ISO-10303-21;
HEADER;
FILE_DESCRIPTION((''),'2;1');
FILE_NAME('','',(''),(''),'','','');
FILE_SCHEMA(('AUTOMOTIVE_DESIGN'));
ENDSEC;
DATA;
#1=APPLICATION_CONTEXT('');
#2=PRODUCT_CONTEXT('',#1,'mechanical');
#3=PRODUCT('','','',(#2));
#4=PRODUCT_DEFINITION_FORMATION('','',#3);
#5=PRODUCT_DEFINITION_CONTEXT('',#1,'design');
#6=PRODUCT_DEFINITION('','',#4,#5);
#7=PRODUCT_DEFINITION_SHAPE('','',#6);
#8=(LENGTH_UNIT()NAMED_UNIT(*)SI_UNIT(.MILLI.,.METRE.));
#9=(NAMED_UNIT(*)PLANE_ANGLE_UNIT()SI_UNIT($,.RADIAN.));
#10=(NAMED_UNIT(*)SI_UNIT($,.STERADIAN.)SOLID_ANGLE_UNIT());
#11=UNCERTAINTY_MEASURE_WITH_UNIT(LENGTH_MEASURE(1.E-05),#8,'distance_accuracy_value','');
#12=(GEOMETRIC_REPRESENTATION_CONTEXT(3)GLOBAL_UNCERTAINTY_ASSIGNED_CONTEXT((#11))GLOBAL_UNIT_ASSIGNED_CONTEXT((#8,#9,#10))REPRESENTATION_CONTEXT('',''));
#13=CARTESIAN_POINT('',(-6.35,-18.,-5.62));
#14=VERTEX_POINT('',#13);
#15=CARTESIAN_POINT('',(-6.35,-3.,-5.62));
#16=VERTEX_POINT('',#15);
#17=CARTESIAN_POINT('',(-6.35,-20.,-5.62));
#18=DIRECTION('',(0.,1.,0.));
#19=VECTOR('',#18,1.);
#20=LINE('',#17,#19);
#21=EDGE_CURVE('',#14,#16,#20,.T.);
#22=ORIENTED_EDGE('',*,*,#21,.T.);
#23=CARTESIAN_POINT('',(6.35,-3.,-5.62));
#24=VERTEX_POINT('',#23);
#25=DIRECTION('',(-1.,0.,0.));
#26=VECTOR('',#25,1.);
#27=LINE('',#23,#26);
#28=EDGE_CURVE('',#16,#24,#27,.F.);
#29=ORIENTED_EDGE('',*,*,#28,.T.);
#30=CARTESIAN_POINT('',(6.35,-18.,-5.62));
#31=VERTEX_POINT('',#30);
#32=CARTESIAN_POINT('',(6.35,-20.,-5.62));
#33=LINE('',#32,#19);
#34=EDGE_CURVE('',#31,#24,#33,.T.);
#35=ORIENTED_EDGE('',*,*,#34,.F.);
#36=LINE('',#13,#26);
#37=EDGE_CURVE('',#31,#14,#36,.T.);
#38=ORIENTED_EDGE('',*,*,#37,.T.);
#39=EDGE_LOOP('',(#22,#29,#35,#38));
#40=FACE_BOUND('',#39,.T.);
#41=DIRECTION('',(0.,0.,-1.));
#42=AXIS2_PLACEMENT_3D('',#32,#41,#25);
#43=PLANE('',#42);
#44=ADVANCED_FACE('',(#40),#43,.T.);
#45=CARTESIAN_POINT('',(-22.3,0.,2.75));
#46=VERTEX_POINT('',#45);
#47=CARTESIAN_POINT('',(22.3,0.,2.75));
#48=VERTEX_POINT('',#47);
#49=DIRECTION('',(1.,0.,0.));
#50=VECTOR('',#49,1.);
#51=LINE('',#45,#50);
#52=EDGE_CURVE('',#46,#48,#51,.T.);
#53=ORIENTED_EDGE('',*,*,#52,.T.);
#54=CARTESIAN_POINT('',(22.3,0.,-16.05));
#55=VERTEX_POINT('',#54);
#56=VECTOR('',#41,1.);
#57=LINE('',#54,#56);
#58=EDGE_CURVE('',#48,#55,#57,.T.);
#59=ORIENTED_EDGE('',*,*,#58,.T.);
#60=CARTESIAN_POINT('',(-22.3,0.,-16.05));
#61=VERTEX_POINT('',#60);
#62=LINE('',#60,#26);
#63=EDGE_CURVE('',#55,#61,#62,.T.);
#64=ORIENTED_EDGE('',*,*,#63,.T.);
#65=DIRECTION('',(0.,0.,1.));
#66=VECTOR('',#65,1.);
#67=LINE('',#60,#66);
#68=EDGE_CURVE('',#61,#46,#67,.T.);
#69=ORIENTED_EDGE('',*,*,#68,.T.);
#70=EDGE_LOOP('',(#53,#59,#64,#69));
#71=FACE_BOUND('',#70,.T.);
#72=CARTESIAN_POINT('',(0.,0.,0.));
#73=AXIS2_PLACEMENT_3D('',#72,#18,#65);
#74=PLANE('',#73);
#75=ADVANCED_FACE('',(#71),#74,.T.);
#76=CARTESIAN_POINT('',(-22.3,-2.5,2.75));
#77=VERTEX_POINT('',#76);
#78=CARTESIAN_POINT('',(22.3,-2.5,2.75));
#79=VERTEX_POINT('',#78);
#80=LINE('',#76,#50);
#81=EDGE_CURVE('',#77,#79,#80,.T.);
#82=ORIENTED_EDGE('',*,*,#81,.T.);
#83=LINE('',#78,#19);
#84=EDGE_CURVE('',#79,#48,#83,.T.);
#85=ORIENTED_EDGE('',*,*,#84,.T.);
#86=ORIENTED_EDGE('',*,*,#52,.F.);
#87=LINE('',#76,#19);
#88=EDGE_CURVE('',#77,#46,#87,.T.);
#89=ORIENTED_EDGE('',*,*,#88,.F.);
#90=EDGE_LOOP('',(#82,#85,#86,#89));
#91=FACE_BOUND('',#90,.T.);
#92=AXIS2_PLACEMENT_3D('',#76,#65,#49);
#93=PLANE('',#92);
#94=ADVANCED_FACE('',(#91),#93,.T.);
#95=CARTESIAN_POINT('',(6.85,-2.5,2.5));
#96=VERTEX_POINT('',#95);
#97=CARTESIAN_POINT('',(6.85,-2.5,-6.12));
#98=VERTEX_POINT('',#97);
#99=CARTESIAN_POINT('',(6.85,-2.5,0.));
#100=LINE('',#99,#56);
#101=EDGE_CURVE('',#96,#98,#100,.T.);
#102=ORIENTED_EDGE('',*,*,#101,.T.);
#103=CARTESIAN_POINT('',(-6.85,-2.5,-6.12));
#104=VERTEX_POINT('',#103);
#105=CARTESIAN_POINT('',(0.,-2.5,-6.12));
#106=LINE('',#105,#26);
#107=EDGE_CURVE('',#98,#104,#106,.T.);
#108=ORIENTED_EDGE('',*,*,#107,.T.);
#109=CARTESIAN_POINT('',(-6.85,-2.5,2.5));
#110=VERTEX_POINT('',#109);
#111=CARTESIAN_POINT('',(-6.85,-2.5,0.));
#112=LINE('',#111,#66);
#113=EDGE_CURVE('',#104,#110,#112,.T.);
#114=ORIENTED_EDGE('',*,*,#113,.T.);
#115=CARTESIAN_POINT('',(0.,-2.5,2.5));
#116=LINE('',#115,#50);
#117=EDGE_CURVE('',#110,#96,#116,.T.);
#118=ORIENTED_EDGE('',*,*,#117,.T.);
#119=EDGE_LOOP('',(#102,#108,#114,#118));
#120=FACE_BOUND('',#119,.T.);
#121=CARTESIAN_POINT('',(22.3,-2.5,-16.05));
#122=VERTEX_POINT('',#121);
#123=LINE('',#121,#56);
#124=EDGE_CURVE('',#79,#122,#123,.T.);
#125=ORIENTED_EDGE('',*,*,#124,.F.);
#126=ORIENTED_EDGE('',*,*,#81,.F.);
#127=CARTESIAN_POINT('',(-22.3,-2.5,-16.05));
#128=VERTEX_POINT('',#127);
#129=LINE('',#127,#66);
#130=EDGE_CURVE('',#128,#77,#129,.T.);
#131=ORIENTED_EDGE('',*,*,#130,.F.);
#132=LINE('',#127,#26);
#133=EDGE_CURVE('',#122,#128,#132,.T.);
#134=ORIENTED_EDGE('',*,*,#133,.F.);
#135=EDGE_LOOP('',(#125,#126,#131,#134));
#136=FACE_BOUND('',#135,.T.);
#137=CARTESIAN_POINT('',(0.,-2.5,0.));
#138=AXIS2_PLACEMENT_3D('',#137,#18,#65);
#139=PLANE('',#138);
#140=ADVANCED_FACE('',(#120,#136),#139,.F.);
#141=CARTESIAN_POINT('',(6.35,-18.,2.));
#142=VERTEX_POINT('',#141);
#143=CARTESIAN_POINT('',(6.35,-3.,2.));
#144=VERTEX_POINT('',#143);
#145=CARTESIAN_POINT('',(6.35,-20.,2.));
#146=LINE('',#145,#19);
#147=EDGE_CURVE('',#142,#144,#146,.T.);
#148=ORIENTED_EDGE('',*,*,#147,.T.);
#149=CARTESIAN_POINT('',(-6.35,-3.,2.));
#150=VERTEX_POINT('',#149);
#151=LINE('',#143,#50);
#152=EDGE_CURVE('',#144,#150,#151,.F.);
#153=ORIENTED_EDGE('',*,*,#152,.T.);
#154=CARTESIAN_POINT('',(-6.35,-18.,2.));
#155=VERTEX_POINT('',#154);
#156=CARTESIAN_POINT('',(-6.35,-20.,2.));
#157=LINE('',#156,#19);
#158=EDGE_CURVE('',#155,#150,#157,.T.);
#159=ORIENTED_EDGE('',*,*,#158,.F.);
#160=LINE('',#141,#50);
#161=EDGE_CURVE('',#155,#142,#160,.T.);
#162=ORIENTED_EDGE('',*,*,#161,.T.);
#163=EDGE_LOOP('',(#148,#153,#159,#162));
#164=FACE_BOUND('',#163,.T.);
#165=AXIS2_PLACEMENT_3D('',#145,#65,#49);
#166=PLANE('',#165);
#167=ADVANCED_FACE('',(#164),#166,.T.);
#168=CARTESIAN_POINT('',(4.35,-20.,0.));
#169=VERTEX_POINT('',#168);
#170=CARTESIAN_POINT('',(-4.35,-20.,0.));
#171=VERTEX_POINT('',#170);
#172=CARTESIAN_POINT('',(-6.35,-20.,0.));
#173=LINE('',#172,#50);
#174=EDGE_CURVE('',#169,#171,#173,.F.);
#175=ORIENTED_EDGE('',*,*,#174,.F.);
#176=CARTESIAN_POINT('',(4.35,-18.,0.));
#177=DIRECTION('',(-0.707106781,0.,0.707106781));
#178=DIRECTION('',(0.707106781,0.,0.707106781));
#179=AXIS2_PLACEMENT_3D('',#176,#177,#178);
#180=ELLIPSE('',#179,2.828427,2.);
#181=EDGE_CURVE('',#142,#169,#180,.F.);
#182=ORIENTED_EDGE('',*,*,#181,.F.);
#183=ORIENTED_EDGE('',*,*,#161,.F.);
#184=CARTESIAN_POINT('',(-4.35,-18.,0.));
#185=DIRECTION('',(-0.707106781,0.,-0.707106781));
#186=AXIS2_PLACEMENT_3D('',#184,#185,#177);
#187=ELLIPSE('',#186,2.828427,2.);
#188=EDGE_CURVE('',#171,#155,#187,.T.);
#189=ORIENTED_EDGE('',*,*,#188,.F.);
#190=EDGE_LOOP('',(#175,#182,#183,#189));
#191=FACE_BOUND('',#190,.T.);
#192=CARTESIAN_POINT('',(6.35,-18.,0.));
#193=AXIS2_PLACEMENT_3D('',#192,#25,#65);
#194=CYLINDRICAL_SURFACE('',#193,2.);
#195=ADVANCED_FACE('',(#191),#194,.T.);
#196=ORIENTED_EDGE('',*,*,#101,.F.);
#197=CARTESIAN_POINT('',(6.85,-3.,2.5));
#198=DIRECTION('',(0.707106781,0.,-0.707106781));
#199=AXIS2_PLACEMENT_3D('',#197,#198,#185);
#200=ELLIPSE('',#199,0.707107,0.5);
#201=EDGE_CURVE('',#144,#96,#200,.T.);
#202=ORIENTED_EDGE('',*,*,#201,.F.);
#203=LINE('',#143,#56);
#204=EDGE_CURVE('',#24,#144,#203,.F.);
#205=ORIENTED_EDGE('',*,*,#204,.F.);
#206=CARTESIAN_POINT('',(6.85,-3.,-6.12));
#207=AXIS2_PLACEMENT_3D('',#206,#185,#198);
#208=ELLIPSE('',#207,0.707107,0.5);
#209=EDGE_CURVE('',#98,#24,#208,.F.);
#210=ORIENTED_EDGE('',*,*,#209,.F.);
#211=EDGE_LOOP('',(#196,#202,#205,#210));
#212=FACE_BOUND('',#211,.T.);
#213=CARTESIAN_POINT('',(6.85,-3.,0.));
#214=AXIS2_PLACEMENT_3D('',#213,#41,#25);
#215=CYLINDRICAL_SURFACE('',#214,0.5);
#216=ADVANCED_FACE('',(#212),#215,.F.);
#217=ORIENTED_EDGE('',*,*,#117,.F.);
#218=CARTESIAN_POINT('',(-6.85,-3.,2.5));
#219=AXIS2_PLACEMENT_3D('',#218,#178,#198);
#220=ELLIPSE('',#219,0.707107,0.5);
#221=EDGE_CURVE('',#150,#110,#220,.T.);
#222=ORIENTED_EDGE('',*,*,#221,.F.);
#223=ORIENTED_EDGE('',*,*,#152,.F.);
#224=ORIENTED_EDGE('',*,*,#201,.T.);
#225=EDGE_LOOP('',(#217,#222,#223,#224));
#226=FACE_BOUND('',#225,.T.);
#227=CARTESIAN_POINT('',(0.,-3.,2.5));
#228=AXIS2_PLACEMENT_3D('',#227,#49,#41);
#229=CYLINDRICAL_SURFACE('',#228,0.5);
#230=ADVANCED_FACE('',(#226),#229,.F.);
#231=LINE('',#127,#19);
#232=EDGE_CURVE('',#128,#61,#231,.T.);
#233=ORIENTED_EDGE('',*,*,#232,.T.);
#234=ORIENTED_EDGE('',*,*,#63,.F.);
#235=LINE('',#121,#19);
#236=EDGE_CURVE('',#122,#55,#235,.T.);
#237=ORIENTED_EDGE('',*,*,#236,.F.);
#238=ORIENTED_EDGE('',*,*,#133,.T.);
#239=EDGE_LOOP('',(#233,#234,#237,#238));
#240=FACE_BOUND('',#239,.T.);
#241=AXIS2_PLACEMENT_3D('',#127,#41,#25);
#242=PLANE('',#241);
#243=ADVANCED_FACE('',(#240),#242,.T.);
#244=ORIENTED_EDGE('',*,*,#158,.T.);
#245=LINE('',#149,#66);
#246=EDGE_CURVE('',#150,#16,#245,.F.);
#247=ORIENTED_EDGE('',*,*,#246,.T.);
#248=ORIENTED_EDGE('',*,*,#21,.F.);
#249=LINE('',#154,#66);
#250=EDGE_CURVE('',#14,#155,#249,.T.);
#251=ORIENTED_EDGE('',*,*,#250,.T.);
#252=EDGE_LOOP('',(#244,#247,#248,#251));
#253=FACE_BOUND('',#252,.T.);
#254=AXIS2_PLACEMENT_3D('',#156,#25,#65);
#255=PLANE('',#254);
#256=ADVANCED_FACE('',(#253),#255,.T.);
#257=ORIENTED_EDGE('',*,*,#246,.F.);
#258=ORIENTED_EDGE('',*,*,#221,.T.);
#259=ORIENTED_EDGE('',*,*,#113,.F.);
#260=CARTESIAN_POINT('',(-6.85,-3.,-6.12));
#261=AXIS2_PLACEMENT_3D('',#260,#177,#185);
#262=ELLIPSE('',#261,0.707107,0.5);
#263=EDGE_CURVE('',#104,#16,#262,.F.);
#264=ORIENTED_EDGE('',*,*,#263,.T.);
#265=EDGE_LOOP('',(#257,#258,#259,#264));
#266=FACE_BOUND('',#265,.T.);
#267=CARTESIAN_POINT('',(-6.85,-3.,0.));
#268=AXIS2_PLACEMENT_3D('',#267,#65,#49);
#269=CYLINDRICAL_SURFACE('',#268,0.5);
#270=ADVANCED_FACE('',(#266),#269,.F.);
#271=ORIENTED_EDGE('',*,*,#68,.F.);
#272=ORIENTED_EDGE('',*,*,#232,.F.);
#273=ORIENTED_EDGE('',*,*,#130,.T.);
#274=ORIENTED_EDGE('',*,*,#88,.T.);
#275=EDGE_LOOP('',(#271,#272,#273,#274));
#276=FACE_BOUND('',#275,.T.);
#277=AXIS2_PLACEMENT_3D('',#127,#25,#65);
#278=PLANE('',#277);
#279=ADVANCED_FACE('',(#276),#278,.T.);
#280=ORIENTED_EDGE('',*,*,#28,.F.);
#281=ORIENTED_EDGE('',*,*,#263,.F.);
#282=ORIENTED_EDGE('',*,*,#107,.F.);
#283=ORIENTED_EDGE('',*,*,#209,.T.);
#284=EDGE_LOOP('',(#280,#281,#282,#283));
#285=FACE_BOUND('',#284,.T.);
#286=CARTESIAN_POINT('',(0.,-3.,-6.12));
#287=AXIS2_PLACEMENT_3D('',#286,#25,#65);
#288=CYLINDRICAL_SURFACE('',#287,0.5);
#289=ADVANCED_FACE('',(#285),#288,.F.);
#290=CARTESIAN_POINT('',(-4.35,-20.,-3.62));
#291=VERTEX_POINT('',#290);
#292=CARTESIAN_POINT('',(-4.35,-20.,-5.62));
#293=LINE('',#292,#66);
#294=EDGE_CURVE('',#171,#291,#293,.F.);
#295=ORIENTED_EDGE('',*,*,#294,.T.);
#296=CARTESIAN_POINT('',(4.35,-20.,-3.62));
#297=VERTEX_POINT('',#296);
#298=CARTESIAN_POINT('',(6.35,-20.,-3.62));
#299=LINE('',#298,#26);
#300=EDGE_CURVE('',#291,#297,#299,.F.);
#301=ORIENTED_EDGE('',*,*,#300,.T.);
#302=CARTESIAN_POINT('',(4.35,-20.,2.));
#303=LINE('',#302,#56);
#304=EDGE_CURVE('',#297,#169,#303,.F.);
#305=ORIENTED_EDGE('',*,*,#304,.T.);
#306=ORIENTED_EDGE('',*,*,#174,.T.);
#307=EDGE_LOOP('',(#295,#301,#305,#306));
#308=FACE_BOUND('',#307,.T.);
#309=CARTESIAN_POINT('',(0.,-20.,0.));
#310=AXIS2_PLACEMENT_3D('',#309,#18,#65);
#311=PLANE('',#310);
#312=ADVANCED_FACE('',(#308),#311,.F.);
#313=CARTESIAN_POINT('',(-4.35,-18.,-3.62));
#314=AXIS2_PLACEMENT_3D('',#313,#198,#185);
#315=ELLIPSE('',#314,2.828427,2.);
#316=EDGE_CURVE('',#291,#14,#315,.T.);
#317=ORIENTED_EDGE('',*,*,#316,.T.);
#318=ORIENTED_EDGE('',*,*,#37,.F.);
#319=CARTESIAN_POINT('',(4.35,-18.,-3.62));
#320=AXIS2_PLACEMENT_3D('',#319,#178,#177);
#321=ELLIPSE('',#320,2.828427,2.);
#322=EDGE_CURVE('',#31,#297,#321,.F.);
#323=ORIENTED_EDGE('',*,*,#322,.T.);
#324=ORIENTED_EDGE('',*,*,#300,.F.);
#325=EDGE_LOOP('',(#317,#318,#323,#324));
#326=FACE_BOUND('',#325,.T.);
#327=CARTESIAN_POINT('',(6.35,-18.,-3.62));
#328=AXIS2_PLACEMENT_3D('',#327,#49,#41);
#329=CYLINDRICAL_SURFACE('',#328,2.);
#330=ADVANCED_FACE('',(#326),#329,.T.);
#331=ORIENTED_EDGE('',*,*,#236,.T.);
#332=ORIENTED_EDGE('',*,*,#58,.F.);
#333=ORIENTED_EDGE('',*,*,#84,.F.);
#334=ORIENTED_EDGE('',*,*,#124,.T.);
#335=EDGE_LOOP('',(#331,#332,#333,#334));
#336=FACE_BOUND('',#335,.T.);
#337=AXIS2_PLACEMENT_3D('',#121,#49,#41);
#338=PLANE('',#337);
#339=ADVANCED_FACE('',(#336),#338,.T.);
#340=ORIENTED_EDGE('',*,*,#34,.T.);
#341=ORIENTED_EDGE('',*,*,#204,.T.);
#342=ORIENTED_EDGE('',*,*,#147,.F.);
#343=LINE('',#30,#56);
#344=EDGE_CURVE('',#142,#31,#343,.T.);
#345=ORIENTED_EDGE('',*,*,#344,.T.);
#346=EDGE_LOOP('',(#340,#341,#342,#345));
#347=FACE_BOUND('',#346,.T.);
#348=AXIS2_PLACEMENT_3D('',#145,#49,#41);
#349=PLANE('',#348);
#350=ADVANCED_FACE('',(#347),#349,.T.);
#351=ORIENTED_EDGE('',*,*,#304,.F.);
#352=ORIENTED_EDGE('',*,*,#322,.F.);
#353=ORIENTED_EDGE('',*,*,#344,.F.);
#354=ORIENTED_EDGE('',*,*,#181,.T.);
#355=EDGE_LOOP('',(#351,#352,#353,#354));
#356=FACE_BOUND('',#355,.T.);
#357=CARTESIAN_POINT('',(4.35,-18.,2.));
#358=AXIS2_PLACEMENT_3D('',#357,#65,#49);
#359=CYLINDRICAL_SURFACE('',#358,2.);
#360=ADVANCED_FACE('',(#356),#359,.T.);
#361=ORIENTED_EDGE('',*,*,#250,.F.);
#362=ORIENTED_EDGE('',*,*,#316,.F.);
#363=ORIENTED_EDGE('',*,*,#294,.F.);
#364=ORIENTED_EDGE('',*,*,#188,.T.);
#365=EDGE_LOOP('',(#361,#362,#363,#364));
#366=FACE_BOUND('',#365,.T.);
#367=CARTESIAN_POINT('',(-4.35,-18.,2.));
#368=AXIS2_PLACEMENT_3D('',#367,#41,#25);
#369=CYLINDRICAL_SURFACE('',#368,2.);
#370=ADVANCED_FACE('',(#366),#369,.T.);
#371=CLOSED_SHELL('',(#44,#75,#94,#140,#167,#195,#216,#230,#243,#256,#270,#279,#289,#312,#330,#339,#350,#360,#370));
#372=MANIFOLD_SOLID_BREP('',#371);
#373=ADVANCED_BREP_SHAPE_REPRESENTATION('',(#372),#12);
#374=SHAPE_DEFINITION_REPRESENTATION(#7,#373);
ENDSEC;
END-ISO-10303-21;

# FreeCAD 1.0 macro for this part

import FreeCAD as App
import Part
import Sketcher


def edges_at(feature, points):
    """Names of the edges that pass closest to the given points."""
    edges = feature.Shape.Edges
    near = lambda p: min(range(len(edges)), key=lambda i: edges[i].distToShape(Part.Vertex(*p))[0])
    return sorted({f"Edge{near(p) + 1}" for p in points})


def add_polygon(sketch, points):
    """Adds a closed chain of lines whose ends are joined by coincident constraints."""
    first, n = sketch.GeometryCount, len(points)
    for a, b in zip(points, points[1:] + points[:1]):
        sketch.addGeometry(Part.LineSegment(App.Vector(*a, 0), App.Vector(*b, 0)), False)
    for i in range(n):
        sketch.addConstraint(Sketcher.Constraint("Coincident", first + i, 2, first + (i + 1) % n, 1))

doc = App.newDocument("Part")
body = doc.addObject("PartDesign::Body", "Body")

# Sketch on XZ plane
sketch1 = body.newObject("Sketcher::SketchObject", "Sketch")
sketch1.AttachmentSupport = (doc.getObject("XZ_Plane"), [""])
sketch1.MapMode = "FlatFace"
add_polygon(sketch1, [(-22, -16), (-22, 3), (22, 3), (22, -16)])  # lines 0-3
sketch1.addConstraint([
    Sketcher.Constraint("Vertical", 0),
    Sketcher.Constraint("Horizontal", 1),
    Sketcher.Constraint("Vertical", 2),
    Sketcher.Constraint("Horizontal", 3),
    Sketcher.Constraint("DistanceX", 1, 1, 1, 2, 44.6),
    Sketcher.Constraint("DistanceY", 0, 1, 0, 2, 18.8),
    Sketcher.Constraint("DistanceX", 0, 2, -1, 1, 22.3),
    Sketcher.Constraint("DistanceY", -1, 1, 0, 2, 2.75),
])
pad1 = body.newObject("PartDesign::Pad", "Pad")
pad1.Profile = sketch1
pad1.Length = 2.5

# Sketch on XZ plane
sketch2 = body.newObject("Sketcher::SketchObject", "Sketch001")
sketch2.AttachmentSupport = (doc.getObject("XZ_Plane"), [""])
sketch2.MapMode = "FlatFace"
add_polygon(sketch2, [(-6, -6), (-6, 2), (6, 2), (6, -6)])  # lines 0-3
sketch2.addConstraint([
    Sketcher.Constraint("Vertical", 0),
    Sketcher.Constraint("Horizontal", 1),
    Sketcher.Constraint("Vertical", 2),
    Sketcher.Constraint("Horizontal", 3),
    Sketcher.Constraint("DistanceX", 1, 1, 1, 2, 12.7),
    Sketcher.Constraint("DistanceY", -1, 1, 0, 2, 2.0),
    Sketcher.Constraint("DistanceY", 0, 1, 0, 2, 7.62),
    Sketcher.Constraint("DistanceX", 0, 2, -1, 1, 6.35),
])
pad2 = body.newObject("PartDesign::Pad", "Pad001")
pad2.Profile = sketch2
pad2.Length = 20
doc.recompute()

fillet = body.newObject("PartDesign::Fillet", "Fillet")
fillet.Base = (pad2, edges_at(pad2, [
    (6.35, -20, -1.81),
    (0, -20, 2),
    (-6.35, -20, -1.81),
    (0, -20, -5.62),
]))
fillet.Radius = 2
doc.recompute()

fillet2 = body.newObject("PartDesign::Fillet", "Fillet001")
fillet2.Base = (fillet, edges_at(fillet, [
    (6.35, -2.5, -1.81),
    (0, -2.5, 2),
    (-6.35, -2.5, -1.81),
    (0, -2.5, -5.62),
]))
fillet2.Radius = 0.5

doc.recompute()
